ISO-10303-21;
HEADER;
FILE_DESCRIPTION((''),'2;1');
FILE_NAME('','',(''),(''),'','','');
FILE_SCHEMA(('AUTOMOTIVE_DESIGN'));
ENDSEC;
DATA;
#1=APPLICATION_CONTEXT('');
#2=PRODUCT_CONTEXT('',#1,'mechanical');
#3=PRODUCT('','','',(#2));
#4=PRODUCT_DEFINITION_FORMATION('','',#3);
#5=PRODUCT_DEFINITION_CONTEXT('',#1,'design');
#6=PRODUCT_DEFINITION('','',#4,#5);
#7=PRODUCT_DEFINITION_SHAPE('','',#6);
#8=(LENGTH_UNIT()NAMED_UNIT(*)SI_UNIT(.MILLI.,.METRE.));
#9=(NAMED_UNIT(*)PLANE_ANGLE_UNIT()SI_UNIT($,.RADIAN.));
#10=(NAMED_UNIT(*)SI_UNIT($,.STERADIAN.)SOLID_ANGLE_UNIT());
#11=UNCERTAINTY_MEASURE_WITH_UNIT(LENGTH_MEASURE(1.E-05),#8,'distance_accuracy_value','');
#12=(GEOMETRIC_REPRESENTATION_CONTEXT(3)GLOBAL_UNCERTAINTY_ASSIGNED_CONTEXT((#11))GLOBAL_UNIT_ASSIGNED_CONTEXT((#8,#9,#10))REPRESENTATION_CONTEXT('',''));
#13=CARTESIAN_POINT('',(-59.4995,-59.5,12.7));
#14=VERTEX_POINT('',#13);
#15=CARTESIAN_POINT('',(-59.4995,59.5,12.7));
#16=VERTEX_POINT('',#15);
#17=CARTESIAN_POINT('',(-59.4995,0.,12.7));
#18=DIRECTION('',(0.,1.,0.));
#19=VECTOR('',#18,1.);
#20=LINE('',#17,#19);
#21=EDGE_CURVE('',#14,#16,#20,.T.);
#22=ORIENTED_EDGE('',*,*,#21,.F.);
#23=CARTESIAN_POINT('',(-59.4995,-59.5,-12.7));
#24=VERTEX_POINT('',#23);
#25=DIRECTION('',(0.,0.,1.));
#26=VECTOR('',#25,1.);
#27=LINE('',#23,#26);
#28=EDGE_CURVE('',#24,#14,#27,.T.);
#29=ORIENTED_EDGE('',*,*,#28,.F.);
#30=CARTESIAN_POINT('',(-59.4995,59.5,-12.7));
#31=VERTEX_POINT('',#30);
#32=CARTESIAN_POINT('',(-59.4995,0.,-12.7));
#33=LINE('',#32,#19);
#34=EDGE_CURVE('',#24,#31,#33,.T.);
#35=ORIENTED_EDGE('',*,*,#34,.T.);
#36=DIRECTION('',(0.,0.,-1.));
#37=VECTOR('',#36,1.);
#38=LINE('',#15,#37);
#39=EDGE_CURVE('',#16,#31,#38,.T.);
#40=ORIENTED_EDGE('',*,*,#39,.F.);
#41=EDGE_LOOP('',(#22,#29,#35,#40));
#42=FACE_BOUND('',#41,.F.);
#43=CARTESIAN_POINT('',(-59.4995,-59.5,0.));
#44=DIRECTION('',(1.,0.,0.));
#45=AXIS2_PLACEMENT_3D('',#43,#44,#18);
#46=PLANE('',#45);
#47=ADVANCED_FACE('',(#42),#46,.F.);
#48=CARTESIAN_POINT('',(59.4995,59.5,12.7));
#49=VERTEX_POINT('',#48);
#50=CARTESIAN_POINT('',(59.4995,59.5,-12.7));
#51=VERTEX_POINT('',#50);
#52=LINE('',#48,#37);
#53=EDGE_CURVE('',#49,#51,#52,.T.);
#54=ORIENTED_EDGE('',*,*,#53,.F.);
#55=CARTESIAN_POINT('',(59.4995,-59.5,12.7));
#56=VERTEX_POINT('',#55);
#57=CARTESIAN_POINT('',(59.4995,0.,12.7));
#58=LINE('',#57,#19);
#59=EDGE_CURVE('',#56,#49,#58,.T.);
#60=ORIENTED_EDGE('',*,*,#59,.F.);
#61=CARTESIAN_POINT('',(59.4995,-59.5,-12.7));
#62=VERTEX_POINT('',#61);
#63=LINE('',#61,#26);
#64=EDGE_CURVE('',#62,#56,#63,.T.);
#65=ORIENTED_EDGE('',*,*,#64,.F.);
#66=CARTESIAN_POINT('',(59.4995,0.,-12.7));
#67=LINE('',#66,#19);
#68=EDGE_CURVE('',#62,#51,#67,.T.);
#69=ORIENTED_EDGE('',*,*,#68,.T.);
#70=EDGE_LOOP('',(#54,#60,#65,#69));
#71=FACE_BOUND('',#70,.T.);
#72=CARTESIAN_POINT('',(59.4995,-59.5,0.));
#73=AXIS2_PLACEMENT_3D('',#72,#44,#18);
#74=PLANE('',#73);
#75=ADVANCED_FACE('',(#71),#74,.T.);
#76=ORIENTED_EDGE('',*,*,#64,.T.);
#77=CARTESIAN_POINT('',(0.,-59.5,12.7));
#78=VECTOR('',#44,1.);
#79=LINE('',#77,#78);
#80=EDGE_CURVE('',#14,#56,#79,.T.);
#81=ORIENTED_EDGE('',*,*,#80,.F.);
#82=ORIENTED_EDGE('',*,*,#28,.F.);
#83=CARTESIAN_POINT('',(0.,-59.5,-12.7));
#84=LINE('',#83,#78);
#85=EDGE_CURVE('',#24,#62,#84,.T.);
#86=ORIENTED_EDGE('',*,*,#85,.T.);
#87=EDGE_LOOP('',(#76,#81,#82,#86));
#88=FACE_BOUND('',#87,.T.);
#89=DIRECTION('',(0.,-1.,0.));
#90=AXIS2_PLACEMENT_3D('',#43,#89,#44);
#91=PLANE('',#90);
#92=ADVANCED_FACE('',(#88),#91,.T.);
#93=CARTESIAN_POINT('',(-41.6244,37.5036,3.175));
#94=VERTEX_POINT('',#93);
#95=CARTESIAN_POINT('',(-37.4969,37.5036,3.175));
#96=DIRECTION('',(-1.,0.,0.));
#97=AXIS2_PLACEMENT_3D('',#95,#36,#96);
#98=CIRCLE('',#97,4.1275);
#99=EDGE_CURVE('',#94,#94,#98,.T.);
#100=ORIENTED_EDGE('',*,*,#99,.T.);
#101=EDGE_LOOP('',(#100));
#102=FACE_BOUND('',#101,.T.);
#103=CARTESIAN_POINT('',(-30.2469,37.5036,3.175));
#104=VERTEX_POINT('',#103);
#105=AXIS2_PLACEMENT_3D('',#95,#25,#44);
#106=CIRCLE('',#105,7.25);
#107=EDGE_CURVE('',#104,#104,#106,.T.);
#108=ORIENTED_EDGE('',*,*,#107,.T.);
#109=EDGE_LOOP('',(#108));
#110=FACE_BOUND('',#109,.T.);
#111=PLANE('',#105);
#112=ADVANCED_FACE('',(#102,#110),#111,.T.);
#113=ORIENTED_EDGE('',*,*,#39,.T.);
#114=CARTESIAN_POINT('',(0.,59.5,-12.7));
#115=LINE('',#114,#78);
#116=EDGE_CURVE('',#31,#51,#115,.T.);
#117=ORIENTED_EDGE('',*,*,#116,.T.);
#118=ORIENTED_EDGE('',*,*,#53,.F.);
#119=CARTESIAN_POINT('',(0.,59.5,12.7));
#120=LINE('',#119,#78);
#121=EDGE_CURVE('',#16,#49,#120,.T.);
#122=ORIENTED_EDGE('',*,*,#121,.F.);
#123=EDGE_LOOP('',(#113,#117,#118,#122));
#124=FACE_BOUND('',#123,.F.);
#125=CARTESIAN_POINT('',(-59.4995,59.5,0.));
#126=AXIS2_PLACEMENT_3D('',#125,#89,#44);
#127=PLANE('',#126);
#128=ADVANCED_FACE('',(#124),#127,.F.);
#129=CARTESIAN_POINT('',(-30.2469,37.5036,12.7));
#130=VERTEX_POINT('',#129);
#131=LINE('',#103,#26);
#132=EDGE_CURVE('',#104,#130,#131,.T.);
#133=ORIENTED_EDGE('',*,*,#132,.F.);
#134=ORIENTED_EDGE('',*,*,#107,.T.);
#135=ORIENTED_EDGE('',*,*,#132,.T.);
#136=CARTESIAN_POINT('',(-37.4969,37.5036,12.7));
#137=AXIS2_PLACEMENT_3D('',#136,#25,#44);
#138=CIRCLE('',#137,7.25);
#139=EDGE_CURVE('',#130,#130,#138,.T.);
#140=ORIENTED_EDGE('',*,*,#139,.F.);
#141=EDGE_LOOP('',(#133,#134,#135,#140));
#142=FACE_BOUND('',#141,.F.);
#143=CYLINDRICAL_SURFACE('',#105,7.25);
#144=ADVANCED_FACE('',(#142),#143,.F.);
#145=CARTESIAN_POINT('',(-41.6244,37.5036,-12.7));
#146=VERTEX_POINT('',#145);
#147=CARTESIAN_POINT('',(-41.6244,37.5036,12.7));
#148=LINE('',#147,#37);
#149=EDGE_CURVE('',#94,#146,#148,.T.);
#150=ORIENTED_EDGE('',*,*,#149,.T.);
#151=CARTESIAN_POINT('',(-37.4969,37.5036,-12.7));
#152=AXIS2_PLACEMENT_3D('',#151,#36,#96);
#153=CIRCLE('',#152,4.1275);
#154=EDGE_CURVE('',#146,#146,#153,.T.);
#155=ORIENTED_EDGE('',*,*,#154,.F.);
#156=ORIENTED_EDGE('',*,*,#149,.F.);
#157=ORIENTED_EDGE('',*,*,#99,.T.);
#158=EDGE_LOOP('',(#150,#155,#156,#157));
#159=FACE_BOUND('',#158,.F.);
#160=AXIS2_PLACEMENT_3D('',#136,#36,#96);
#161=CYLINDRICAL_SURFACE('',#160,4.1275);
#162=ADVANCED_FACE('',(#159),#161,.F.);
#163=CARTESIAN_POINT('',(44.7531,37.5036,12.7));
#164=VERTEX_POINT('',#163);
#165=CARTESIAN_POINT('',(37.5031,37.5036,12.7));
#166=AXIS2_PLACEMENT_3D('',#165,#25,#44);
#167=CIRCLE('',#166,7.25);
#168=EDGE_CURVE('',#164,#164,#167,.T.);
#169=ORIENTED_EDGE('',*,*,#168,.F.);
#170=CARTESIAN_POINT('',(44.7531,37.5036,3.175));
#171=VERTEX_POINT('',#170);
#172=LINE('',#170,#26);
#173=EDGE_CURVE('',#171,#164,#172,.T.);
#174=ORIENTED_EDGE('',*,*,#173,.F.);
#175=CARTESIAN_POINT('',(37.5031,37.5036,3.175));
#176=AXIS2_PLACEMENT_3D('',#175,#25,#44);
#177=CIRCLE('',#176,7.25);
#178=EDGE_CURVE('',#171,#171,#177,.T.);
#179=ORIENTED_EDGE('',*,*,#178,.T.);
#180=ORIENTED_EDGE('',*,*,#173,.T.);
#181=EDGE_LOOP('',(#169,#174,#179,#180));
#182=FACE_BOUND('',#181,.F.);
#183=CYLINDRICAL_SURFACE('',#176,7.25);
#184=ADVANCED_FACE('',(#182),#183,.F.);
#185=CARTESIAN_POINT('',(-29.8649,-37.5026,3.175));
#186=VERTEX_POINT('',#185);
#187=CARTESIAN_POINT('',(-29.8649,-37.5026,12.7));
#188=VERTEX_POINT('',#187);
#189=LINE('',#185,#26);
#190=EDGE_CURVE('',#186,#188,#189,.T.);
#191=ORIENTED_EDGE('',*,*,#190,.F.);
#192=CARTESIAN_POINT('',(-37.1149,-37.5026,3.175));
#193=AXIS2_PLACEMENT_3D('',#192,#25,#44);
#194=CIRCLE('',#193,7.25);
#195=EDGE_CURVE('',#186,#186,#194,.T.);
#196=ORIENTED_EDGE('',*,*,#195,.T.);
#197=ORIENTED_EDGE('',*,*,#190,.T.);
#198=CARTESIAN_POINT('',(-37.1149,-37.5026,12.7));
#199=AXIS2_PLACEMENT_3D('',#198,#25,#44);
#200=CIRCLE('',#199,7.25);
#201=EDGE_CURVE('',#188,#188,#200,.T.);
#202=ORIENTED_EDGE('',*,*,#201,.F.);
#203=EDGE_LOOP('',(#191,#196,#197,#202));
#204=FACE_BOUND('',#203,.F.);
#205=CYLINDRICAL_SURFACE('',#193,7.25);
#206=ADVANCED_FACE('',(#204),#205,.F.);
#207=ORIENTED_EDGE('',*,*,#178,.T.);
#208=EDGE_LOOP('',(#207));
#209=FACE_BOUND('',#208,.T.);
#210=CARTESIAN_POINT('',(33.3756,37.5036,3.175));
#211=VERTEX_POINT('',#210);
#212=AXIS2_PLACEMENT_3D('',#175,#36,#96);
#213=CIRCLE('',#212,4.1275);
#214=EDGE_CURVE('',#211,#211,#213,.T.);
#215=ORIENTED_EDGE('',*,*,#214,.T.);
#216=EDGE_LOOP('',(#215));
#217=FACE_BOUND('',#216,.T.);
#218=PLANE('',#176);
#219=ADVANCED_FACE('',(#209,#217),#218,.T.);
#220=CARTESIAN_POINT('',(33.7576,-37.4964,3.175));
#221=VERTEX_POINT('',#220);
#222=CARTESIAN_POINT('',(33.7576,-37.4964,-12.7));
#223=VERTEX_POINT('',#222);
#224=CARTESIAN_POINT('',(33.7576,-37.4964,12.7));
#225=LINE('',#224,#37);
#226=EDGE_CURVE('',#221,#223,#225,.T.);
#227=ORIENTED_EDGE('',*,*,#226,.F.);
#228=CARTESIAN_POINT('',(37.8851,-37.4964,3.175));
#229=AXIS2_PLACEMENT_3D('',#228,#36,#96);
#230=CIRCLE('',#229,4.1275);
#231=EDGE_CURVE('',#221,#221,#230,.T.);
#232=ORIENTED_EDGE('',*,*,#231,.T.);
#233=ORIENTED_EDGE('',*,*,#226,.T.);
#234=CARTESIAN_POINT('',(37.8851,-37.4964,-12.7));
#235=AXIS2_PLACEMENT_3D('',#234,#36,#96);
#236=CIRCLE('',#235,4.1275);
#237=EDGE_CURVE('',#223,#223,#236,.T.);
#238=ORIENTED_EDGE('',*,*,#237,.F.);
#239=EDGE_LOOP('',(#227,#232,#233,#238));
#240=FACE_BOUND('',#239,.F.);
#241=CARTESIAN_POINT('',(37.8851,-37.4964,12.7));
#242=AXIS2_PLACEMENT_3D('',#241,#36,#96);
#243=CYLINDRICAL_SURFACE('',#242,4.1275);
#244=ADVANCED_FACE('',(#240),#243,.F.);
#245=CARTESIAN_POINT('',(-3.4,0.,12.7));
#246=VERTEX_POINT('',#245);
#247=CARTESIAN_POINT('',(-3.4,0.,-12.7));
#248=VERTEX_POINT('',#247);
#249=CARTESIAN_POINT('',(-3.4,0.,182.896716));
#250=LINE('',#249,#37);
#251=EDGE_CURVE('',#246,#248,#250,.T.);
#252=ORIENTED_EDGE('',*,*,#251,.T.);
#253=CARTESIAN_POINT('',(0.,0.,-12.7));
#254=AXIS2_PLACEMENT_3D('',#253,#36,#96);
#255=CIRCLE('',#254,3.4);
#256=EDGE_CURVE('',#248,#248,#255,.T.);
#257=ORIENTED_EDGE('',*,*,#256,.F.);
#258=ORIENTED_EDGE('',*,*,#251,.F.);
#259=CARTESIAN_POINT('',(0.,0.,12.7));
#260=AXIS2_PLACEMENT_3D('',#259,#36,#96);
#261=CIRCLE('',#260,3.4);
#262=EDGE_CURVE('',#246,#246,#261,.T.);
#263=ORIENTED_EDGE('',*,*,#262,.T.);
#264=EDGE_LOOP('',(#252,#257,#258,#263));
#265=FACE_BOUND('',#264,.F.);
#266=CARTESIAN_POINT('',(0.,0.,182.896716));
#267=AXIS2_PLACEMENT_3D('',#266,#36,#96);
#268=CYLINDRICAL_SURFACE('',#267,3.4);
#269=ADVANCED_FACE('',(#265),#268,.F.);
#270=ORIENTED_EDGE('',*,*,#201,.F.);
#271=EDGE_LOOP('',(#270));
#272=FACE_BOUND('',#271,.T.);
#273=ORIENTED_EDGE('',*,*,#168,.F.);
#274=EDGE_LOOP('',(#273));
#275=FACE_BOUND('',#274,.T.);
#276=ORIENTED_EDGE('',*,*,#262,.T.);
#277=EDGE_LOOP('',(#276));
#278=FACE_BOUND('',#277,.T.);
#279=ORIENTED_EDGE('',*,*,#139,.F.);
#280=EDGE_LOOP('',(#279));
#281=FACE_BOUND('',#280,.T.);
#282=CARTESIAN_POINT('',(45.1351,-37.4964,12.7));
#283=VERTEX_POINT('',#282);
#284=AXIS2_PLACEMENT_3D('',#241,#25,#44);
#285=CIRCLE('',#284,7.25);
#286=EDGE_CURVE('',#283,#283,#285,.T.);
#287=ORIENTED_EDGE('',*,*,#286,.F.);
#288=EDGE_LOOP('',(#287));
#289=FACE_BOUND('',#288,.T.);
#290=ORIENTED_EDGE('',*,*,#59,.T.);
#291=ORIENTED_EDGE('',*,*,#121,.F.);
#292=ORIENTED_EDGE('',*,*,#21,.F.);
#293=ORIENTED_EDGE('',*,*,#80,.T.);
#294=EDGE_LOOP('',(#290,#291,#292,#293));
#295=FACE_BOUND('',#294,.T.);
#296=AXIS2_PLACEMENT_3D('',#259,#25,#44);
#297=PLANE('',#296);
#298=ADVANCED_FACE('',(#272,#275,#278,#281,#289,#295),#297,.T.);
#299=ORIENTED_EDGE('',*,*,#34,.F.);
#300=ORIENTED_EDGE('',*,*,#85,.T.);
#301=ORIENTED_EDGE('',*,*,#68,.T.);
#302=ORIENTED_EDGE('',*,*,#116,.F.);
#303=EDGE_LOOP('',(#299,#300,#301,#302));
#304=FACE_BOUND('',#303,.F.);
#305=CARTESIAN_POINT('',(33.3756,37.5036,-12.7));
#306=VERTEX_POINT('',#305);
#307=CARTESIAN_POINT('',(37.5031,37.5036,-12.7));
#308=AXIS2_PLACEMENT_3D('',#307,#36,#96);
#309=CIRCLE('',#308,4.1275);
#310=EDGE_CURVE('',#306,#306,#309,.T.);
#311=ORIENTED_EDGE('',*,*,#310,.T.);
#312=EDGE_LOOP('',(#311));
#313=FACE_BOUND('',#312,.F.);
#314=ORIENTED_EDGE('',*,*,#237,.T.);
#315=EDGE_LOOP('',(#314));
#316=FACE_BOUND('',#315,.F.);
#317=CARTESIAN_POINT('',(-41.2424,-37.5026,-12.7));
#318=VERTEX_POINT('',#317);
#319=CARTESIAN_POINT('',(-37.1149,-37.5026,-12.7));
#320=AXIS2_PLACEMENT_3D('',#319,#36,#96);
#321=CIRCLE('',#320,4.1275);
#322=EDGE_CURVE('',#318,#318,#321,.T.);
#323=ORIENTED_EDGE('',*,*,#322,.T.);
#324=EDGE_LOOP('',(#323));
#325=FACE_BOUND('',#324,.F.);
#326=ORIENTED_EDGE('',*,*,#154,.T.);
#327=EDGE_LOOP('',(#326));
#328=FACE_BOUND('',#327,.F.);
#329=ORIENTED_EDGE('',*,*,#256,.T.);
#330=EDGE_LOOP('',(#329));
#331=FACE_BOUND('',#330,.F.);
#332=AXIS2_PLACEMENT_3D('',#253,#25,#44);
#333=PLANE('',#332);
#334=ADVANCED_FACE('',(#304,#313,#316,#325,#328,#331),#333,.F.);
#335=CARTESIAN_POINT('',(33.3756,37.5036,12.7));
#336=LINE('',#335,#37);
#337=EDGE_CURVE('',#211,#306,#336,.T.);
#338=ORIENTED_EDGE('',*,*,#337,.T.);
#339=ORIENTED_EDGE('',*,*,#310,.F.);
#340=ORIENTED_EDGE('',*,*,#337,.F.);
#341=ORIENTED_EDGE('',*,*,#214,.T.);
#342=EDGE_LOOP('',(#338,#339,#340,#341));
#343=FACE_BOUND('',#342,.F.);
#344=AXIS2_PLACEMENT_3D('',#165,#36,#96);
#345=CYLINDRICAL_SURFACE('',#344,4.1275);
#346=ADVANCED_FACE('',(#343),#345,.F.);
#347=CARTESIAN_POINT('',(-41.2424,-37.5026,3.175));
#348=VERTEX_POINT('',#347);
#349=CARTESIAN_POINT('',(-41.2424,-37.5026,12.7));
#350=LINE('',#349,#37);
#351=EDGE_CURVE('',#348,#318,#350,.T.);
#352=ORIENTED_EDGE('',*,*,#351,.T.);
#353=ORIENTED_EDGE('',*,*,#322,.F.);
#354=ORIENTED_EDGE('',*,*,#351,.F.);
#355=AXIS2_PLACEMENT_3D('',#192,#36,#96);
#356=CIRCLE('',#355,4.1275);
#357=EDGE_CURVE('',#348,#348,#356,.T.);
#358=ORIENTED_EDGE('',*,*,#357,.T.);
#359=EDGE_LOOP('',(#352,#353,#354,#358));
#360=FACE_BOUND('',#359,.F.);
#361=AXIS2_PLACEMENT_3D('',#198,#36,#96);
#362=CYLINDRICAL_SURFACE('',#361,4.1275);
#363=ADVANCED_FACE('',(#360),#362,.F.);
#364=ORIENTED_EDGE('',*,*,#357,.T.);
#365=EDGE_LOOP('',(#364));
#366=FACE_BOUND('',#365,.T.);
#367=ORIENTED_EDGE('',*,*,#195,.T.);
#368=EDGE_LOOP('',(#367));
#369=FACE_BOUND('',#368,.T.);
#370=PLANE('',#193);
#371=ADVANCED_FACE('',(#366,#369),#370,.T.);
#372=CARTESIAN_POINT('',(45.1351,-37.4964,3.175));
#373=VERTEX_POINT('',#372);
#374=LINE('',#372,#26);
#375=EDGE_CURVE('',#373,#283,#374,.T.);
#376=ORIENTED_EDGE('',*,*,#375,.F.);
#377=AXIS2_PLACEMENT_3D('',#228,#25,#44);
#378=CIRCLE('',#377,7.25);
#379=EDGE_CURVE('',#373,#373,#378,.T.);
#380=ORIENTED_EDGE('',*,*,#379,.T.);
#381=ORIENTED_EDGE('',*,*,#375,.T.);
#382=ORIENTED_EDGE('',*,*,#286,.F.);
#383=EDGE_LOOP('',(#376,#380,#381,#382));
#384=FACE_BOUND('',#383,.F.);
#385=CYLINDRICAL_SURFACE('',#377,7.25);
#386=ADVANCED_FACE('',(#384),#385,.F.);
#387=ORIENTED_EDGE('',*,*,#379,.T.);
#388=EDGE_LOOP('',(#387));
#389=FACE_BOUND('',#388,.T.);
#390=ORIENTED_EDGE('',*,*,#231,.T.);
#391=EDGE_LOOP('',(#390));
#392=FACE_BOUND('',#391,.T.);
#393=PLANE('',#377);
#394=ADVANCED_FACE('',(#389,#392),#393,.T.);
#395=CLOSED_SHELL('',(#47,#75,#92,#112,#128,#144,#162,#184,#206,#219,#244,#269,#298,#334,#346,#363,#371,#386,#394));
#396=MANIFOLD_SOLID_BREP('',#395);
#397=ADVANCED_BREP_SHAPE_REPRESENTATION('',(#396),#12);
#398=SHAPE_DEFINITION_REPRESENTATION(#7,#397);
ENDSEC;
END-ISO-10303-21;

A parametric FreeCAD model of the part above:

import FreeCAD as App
import Part
import Sketcher
from FreeCAD import Vector
Q = App.Units.Quantity


def add_polygon(sketch, points):
    """Adds a closed chain of lines whose ends are joined by coincident constraints."""
    first, n = sketch.GeometryCount, len(points)
    for a, b in zip(points, points[1:] + points[:1]):
        sketch.addGeometry(Part.LineSegment(App.Vector(*a, 0), App.Vector(*b, 0)), False)
    for i in range(n):
        sketch.addConstraint(Sketcher.Constraint("Coincident", first + i, 2, first + (i + 1) % n, 1))

doc = App.newDocument("Part")
body = doc.addObject("PartDesign::Body", "Body")

sketch1 = body.newObject("Sketcher::SketchObject", "Sketch")
sketch1.AttachmentSupport = (doc.getObject("XY_Plane"), [""])
sketch1.MapMode = "FlatFace"
add_polygon(sketch1, [(-59.4995, 59.5), (-59.4995, -59.5), (59.4995, -59.5), (59.4995, 59.5)])
sketch1.addConstraint([
    Sketcher.Constraint("Vertical", 0),
    Sketcher.Constraint("Horizontal", 1),
    Sketcher.Constraint("Vertical", 2),
    Sketcher.Constraint("Horizontal", 3),
    Sketcher.Constraint("Symmetric", 0, 2, 2, 2, -1, 1),
    Sketcher.Constraint("DistanceX", 1, 1, 1, 2, Q("4.685 in")),
    Sketcher.Constraint("DistanceY", 0, 2, 0, 1, Q("119 mm")),
])
pad1 = body.newObject("PartDesign::Pad", "Pad")
pad1.Profile = sketch1
pad1.Length = Q("1 in")
pad1.Midplane = True

sketch2 = body.newObject("Sketcher::SketchObject", "Sketch001")
sketch2.AttachmentSupport = (doc.getObject("XY_Plane"), [""])
sketch2.MapMode = "FlatFace"
sketch2.AttachmentOffset = App.Placement(Vector(0, 0, 0.5 * 25.4), App.Rotation())
sketch2.addGeometry([
    Part.Circle(Vector(-37.1149, -37.5026, 0), Vector(0, 0, 1), 4.1275),
    Part.Circle(Vector(-37.4969, 37.5036, 0), Vector(0, 0, 1), 4.1275),
    Part.Circle(Vector(37.5031, 37.5036, 0), Vector(0, 0, 1), 4.1275),
    Part.Circle(Vector(37.8851, -37.4964, 0), Vector(0, 0, 1), 4.1275),
], False)
sketch2.addConstraint([
    Sketcher.Constraint("Equal", 0, 1),
    Sketcher.Constraint("Equal", 1, 2),
    Sketcher.Constraint("Equal", 2, 3),
    Sketcher.Constraint("Horizontal", 1, 3, 2, 3),
    Sketcher.Constraint("Diameter", 0, Q("0.325 in")),
    Sketcher.Constraint("DistanceY", 0, 3, 1, 3, Q("2.953 in")),
    Sketcher.Constraint("DistanceX", -1, 1, 2, 3, Q("1.4765 in")),
    Sketcher.Constraint("DistanceX", 0, 3, -1, 1, Q("37.1149 mm")),
    Sketcher.Constraint("DistanceY", 0, 3, -1, 1, Q("37.5026 mm")),
    Sketcher.Constraint("DistanceX", 1, 3, -1, 1, Q("37.4969 mm")),
    Sketcher.Constraint("DistanceX", -1, 1, 3, 3, Q("37.8851 mm")),
    Sketcher.Constraint("DistanceY", 3, 3, -1, 1, Q("37.4964 mm")),
])
doc.recompute()
hole = body.newObject("PartDesign::Hole", "Hole")
hole.Profile = sketch2
hole.ThreadType = "None"
hole.Diameter = Q("0.325 in")
hole.DepthType = "ThroughAll"
hole.HoleCutType = "Counterbore"
hole.HoleCutDiameter = 14.5
hole.HoleCutDepth = Q("0.375 in")

sketch3 = body.newObject("Sketcher::SketchObject", "Sketch002")
sketch3.AttachmentSupport = (doc.getObject("XY_Plane"), [""])
sketch3.MapMode = "FlatFace"
sketch3.AttachmentOffset = App.Placement(Vector(0, 0, 0.5 * 25.4), App.Rotation())
sketch3.addGeometry(Part.Circle(Vector(0, 0, 0), Vector(0, 0, 1), 3.4), False)
sketch3.addConstraint([
    Sketcher.Constraint("Coincident", 0, 3, -1, 1),
    Sketcher.Constraint("Diameter", 0, Q("6.8 mm")),
])
doc.recompute()
hole2 = body.newObject("PartDesign::Hole", "Hole001")
hole2.Profile = sketch3
hole2.ThreadType = "None"
hole2.Diameter = 6.8
hole2.DepthType = "ThroughAll"

doc.recompute()
